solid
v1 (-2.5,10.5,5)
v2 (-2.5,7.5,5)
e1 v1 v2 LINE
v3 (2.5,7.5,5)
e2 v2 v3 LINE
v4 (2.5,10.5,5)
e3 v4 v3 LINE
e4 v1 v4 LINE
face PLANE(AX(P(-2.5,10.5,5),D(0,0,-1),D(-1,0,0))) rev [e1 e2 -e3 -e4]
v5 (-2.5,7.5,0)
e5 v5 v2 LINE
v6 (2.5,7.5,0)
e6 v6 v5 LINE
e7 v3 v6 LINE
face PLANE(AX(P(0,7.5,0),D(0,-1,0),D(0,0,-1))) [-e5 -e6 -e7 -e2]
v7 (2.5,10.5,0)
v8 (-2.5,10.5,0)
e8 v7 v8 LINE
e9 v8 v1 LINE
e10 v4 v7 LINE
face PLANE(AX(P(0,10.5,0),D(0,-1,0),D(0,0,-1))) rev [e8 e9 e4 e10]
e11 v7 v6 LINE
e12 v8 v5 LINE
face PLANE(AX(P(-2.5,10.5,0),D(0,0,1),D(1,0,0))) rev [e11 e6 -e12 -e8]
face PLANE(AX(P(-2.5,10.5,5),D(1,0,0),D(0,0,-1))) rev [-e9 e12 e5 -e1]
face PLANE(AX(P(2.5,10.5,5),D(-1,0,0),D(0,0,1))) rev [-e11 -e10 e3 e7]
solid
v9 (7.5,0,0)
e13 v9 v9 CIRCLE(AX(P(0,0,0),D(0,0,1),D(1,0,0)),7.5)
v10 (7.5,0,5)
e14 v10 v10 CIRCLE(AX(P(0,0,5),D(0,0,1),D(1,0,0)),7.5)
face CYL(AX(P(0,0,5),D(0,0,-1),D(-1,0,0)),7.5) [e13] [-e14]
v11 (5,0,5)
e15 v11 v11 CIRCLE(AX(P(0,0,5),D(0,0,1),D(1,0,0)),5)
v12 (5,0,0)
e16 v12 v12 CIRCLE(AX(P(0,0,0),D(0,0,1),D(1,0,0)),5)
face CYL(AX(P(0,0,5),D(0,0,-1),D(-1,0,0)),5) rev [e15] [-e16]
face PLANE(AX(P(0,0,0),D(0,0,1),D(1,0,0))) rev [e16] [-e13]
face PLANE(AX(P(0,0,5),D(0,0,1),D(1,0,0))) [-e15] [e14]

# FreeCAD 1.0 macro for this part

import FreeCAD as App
import Part
import Sketcher


def add_polygon(sketch, points):
    """Adds a closed chain of lines whose ends are joined by coincident constraints."""
    first, n = sketch.GeometryCount, len(points)
    for a, b in zip(points, points[1:] + points[:1]):
        sketch.addGeometry(Part.LineSegment(App.Vector(*a, 0), App.Vector(*b, 0)), False)
    for i in range(n):
        sketch.addConstraint(Sketcher.Constraint("Coincident", first + i, 2, first + (i + 1) % n, 1))

doc = App.newDocument("Part")
body = doc.addObject("PartDesign::Body", "Body")

sketch1 = doc.addObject("Sketcher::SketchObject", "Sketch")
body.addObject(sketch1)
sketch1.AttachmentSupport = (doc.XY_Plane, [""])
sketch1.MapMode = "FlatFace"
sketch1.addGeometry([
    Part.Circle(App.Vector(0, 0, 0), App.Vector(0, 0, 1), 8),
    Part.Circle(App.Vector(0, 0, 0), App.Vector(0, 0, 1), 5),
], False)
sketch1.addConstraint([
    Sketcher.Constraint("Coincident", 0, 3, -1, 1),
    Sketcher.Constraint("Coincident", 1, 3, -1, 1),
    Sketcher.Constraint("Diameter", 0, 15.0),
    Sketcher.Constraint("Diameter", 1, 10.0),
])
pad1 = doc.addObject("PartDesign::Pad", "Pad")
body.addObject(pad1)
pad1.Profile = sketch1
pad1.Length = 5
body2 = doc.addObject("PartDesign::Body", "Body001")

sketch2 = doc.addObject("Sketcher::SketchObject", "Sketch001")
body2.addObject(sketch2)
sketch2.AttachmentSupport = (doc.getObject("XZ_Plane001"), [""])
sketch2.MapMode = "FlatFace"
sketch2.AttachmentOffset = App.Placement(App.Vector(0, 0, -7.5), App.Rotation())
add_polygon(sketch2, [(-2, 0), (-2, 5), (2, 5), (2, 0)])
sketch2.addConstraint([
    Sketcher.Constraint("Vertical", 0),
    Sketcher.Constraint("Horizontal", 1),
    Sketcher.Constraint("Vertical", 2),
    Sketcher.Constraint("Horizontal", 3),
    Sketcher.Constraint("Symmetric", 2, 2, 3, 2, -1, 1),
    Sketcher.Constraint("Equal", 3, 0),
    Sketcher.Constraint("DistanceX", 1, 1, 1, 2, 5.0),
])
pad2 = doc.addObject("PartDesign::Pad", "Pad001")
body2.addObject(pad2)
pad2.Profile = sketch2
pad2.Length = 3
pad2.Reversed = True

doc.recompute()
